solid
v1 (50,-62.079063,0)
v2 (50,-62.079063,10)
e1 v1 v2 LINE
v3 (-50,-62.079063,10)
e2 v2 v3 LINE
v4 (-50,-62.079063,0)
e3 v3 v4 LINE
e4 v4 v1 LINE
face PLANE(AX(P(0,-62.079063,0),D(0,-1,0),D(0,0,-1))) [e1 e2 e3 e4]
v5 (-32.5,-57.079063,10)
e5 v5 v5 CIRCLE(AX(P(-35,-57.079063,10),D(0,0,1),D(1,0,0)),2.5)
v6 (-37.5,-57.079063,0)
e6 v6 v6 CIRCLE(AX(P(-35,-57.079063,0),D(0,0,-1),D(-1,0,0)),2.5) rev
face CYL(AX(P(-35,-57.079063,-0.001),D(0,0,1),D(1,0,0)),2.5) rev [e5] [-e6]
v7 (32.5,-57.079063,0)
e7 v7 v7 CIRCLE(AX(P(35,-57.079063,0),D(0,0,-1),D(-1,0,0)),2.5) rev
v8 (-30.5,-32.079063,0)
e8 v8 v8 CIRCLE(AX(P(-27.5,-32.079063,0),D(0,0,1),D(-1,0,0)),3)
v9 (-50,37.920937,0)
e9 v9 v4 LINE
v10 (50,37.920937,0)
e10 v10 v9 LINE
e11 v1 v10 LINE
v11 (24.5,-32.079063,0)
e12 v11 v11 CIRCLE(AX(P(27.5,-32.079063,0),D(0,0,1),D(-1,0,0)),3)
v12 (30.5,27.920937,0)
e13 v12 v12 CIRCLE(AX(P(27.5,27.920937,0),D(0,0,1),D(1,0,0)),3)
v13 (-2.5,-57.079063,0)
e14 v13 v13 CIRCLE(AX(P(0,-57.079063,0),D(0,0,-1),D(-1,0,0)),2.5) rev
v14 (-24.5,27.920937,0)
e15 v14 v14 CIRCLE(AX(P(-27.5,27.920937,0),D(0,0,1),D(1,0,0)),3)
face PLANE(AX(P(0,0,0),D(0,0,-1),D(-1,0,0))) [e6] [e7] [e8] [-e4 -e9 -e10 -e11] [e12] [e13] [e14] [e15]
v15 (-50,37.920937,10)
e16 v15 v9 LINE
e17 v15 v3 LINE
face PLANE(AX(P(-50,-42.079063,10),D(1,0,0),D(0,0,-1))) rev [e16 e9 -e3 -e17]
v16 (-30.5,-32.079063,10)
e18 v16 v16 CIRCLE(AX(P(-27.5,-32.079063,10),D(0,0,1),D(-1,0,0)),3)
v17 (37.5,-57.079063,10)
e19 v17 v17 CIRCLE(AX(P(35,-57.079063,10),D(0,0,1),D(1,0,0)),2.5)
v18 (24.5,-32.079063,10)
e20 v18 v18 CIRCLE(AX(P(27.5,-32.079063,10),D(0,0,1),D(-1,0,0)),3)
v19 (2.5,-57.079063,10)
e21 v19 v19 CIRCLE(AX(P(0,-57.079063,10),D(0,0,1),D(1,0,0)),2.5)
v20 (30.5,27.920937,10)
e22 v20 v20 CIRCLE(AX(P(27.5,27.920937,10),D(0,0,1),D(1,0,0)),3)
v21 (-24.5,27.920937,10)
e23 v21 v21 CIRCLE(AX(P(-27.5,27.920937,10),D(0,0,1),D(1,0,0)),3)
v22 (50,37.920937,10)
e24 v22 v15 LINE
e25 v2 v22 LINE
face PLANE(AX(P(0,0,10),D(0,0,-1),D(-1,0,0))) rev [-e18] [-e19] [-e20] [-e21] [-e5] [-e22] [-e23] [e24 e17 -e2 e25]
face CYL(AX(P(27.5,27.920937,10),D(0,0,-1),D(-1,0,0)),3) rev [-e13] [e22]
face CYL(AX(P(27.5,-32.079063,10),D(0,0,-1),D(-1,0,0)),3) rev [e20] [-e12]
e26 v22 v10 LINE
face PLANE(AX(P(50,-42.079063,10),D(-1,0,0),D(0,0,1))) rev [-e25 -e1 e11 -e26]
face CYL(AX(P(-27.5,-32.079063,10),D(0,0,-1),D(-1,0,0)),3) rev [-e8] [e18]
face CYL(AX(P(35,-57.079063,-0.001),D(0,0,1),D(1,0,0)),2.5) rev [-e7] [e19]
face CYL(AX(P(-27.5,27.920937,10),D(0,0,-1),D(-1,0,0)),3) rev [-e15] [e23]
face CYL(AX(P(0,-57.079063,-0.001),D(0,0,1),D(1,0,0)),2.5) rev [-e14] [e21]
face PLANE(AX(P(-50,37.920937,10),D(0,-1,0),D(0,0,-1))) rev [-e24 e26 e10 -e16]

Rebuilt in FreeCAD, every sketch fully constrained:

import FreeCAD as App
import Part
import Sketcher


def add_polygon(sketch, points):
    """Adds a closed chain of lines whose ends are joined by coincident constraints."""
    first, n = sketch.GeometryCount, len(points)
    for a, b in zip(points, points[1:] + points[:1]):
        sketch.addGeometry(Part.LineSegment(App.Vector(*a, 0), App.Vector(*b, 0)), False)
    for i in range(n):
        sketch.addConstraint(Sketcher.Constraint("Coincident", first + i, 2, first + (i + 1) % n, 1))

doc = App.newDocument("Part")
body = doc.addObject("PartDesign::Body", "Body")

# Sketch on XY plane
sketch1 = body.newObject("Sketcher::SketchObject", "Sketch")
sketch1.AttachmentSupport = (doc.getObject("XY_Plane"), [""])
sketch1.MapMode = "FlatFace"
add_polygon(sketch1, [(-50, 37.9), (-50, -42.1), (50, -42.1), (50, 37.9)])  # lines 0-3
sketch1.addGeometry(Part.Circle(App.Vector(-27.5, -32.1, 0), App.Vector(0, 0, 1), 3), False)  # 4
sketch1.addGeometry(Part.Circle(App.Vector(27.5, -32.1, 0), App.Vector(0, 0, 1), 3), False)  # 5
sketch1.addGeometry(Part.Circle(App.Vector(-27.5, 27.9, 0), App.Vector(0, 0, 1), 3), False)  # 6
sketch1.addGeometry(Part.Circle(App.Vector(27.5, 27.9, 0), App.Vector(0, 0, 1), 3), False)  # 7
sketch1.addConstraint(Sketcher.Constraint("Vertical", 0))
sketch1.addConstraint(Sketcher.Constraint("Horizontal", 1))
sketch1.addConstraint(Sketcher.Constraint("Vertical", 2))
sketch1.addConstraint(Sketcher.Constraint("Horizontal", 3))
sketch1.addConstraint(Sketcher.Constraint("Equal", 4, 5))
sketch1.addConstraint(Sketcher.Constraint("Equal", 5, 6))
sketch1.addConstraint(Sketcher.Constraint("Equal", 6, 7))
sketch1.addConstraint(Sketcher.Constraint("Symmetric", 4, 3, 5, 3, -2))
sketch1.addConstraint(Sketcher.Constraint("Symmetric", 6, 3, 7, 3, -2))
sketch1.addConstraint(Sketcher.Constraint("Vertical", 4, 3, 6, 3))
sketch1.addConstraint(Sketcher.Constraint("Diameter", 4, 6.0))
sketch1.addConstraint(Sketcher.Constraint("DistanceX", 1, 1, 1, 2, 100.0))
sketch1.addConstraint(Sketcher.Constraint("DistanceY", 0, 2, 0, 1, 80.0))
sketch1.addConstraint(Sketcher.Constraint("DistanceX", 0, 2, -1, 1, 50.0))
sketch1.addConstraint(Sketcher.Constraint("DistanceX", 4, 3, 5, 3, 55.0))
sketch1.addConstraint(Sketcher.Constraint("DistanceY", 4, 3, 6, 3, 60.0))
sketch1.addConstraint(Sketcher.Constraint("DistanceY", 0, 2, 4, 3, 10.0))
sketch1.addConstraint(Sketcher.Constraint("DistanceY", 4, 3, -1, 1, 32.079063))
pad1 = body.newObject("PartDesign::Pad", "Pad")
pad1.Profile = sketch1
pad1.Length = 10

# Sketch on XZ plane
sketch2 = body.newObject("Sketcher::SketchObject", "Sketch001")
sketch2.AttachmentSupport = (doc.getObject("XZ_Plane"), [""])
sketch2.MapMode = "FlatFace"
sketch2.AttachmentOffset = App.Placement(App.Vector(0, 0, 42.079063), App.Rotation())
add_polygon(sketch2, [(-50, 10), (-50, 0), (50, 0), (50, 10)])  # lines 0-3
sketch2.addConstraint(Sketcher.Constraint("Vertical", 0))
sketch2.addConstraint(Sketcher.Constraint("Horizontal", 1))
sketch2.addConstraint(Sketcher.Constraint("Vertical", 2))
sketch2.addConstraint(Sketcher.Constraint("Horizontal", 3))
sketch2.addConstraint(Sketcher.Constraint("Symmetric", 0, 2, 1, 2, -1, 1))
sketch2.addConstraint(Sketcher.Constraint("DistanceX", 1, 1, 1, 2, 100.0))
sketch2.addConstraint(Sketcher.Constraint("DistanceY", 0, 2, 0, 1, 10.0))
pad2 = body.newObject("PartDesign::Pad", "Pad001")
pad2.Profile = sketch2
pad2.Length = 20

# Sketch on XY plane
sketch3 = body.newObject("Sketcher::SketchObject", "Sketch002")
sketch3.AttachmentSupport = (doc.getObject("XY_Plane"), [""])
sketch3.MapMode = "FlatFace"
sketch3.AttachmentOffset = App.Placement(App.Vector(0, 0, 10), App.Rotation())
sketch3.addGeometry(Part.Circle(App.Vector(0, -57.1, 0), App.Vector(0, 0, 1), 2.5), False)
sketch3.addConstraint(Sketcher.Constraint("PointOnObject", 0, 3, -2))
sketch3.addConstraint(Sketcher.Constraint("Diameter", 0, 5.0))
sketch3.addConstraint(Sketcher.Constraint("DistanceY", 0, 3, -1, 1, 57.079063))
pocket1 = body.newObject("PartDesign::Pocket", "Pocket")
pocket1.Profile = sketch3
pocket1.Type = "UpToFirst"

# Sketch on XY plane
sketch4 = body.newObject("Sketcher::SketchObject", "Sketch003")
sketch4.AttachmentSupport = (doc.getObject("XY_Plane"), [""])
sketch4.MapMode = "FlatFace"
sketch4.AttachmentOffset = App.Placement(App.Vector(0, 0, 10), App.Rotation())
sketch4.addGeometry(Part.Circle(App.Vector(-35, -57.1, 0), App.Vector(0, 0, 1), 2.5), False)
sketch4.addConstraint(Sketcher.Constraint("Diameter", 0, 5.0))
sketch4.addConstraint(Sketcher.Constraint("DistanceX", 0, 3, -1, 1, 35.0))
sketch4.addConstraint(Sketcher.Constraint("DistanceY", 0, 3, -1, 1, 57.079063))
pocket2 = body.newObject("PartDesign::Pocket", "Pocket001")
pocket2.Profile = sketch4
pocket2.Type = "UpToFirst"

# Sketch on XY plane
sketch5 = body.newObject("Sketcher::SketchObject", "Sketch004")
sketch5.AttachmentSupport = (doc.getObject("XY_Plane"), [""])
sketch5.MapMode = "FlatFace"
sketch5.AttachmentOffset = App.Placement(App.Vector(0, 0, 10), App.Rotation())
sketch5.addGeometry(Part.Circle(App.Vector(35, -57.1, 0), App.Vector(0, 0, 1), 2.5), False)
sketch5.addConstraint(Sketcher.Constraint("Diameter", 0, 5.0))
sketch5.addConstraint(Sketcher.Constraint("DistanceX", -1, 1, 0, 3, 35.0))
sketch5.addConstraint(Sketcher.Constraint("DistanceY", 0, 3, -1, 1, 57.079063))
pocket3 = body.newObject("PartDesign::Pocket", "Pocket002")
pocket3.Profile = sketch5
pocket3.Type = "UpToFirst"

doc.recompute()
